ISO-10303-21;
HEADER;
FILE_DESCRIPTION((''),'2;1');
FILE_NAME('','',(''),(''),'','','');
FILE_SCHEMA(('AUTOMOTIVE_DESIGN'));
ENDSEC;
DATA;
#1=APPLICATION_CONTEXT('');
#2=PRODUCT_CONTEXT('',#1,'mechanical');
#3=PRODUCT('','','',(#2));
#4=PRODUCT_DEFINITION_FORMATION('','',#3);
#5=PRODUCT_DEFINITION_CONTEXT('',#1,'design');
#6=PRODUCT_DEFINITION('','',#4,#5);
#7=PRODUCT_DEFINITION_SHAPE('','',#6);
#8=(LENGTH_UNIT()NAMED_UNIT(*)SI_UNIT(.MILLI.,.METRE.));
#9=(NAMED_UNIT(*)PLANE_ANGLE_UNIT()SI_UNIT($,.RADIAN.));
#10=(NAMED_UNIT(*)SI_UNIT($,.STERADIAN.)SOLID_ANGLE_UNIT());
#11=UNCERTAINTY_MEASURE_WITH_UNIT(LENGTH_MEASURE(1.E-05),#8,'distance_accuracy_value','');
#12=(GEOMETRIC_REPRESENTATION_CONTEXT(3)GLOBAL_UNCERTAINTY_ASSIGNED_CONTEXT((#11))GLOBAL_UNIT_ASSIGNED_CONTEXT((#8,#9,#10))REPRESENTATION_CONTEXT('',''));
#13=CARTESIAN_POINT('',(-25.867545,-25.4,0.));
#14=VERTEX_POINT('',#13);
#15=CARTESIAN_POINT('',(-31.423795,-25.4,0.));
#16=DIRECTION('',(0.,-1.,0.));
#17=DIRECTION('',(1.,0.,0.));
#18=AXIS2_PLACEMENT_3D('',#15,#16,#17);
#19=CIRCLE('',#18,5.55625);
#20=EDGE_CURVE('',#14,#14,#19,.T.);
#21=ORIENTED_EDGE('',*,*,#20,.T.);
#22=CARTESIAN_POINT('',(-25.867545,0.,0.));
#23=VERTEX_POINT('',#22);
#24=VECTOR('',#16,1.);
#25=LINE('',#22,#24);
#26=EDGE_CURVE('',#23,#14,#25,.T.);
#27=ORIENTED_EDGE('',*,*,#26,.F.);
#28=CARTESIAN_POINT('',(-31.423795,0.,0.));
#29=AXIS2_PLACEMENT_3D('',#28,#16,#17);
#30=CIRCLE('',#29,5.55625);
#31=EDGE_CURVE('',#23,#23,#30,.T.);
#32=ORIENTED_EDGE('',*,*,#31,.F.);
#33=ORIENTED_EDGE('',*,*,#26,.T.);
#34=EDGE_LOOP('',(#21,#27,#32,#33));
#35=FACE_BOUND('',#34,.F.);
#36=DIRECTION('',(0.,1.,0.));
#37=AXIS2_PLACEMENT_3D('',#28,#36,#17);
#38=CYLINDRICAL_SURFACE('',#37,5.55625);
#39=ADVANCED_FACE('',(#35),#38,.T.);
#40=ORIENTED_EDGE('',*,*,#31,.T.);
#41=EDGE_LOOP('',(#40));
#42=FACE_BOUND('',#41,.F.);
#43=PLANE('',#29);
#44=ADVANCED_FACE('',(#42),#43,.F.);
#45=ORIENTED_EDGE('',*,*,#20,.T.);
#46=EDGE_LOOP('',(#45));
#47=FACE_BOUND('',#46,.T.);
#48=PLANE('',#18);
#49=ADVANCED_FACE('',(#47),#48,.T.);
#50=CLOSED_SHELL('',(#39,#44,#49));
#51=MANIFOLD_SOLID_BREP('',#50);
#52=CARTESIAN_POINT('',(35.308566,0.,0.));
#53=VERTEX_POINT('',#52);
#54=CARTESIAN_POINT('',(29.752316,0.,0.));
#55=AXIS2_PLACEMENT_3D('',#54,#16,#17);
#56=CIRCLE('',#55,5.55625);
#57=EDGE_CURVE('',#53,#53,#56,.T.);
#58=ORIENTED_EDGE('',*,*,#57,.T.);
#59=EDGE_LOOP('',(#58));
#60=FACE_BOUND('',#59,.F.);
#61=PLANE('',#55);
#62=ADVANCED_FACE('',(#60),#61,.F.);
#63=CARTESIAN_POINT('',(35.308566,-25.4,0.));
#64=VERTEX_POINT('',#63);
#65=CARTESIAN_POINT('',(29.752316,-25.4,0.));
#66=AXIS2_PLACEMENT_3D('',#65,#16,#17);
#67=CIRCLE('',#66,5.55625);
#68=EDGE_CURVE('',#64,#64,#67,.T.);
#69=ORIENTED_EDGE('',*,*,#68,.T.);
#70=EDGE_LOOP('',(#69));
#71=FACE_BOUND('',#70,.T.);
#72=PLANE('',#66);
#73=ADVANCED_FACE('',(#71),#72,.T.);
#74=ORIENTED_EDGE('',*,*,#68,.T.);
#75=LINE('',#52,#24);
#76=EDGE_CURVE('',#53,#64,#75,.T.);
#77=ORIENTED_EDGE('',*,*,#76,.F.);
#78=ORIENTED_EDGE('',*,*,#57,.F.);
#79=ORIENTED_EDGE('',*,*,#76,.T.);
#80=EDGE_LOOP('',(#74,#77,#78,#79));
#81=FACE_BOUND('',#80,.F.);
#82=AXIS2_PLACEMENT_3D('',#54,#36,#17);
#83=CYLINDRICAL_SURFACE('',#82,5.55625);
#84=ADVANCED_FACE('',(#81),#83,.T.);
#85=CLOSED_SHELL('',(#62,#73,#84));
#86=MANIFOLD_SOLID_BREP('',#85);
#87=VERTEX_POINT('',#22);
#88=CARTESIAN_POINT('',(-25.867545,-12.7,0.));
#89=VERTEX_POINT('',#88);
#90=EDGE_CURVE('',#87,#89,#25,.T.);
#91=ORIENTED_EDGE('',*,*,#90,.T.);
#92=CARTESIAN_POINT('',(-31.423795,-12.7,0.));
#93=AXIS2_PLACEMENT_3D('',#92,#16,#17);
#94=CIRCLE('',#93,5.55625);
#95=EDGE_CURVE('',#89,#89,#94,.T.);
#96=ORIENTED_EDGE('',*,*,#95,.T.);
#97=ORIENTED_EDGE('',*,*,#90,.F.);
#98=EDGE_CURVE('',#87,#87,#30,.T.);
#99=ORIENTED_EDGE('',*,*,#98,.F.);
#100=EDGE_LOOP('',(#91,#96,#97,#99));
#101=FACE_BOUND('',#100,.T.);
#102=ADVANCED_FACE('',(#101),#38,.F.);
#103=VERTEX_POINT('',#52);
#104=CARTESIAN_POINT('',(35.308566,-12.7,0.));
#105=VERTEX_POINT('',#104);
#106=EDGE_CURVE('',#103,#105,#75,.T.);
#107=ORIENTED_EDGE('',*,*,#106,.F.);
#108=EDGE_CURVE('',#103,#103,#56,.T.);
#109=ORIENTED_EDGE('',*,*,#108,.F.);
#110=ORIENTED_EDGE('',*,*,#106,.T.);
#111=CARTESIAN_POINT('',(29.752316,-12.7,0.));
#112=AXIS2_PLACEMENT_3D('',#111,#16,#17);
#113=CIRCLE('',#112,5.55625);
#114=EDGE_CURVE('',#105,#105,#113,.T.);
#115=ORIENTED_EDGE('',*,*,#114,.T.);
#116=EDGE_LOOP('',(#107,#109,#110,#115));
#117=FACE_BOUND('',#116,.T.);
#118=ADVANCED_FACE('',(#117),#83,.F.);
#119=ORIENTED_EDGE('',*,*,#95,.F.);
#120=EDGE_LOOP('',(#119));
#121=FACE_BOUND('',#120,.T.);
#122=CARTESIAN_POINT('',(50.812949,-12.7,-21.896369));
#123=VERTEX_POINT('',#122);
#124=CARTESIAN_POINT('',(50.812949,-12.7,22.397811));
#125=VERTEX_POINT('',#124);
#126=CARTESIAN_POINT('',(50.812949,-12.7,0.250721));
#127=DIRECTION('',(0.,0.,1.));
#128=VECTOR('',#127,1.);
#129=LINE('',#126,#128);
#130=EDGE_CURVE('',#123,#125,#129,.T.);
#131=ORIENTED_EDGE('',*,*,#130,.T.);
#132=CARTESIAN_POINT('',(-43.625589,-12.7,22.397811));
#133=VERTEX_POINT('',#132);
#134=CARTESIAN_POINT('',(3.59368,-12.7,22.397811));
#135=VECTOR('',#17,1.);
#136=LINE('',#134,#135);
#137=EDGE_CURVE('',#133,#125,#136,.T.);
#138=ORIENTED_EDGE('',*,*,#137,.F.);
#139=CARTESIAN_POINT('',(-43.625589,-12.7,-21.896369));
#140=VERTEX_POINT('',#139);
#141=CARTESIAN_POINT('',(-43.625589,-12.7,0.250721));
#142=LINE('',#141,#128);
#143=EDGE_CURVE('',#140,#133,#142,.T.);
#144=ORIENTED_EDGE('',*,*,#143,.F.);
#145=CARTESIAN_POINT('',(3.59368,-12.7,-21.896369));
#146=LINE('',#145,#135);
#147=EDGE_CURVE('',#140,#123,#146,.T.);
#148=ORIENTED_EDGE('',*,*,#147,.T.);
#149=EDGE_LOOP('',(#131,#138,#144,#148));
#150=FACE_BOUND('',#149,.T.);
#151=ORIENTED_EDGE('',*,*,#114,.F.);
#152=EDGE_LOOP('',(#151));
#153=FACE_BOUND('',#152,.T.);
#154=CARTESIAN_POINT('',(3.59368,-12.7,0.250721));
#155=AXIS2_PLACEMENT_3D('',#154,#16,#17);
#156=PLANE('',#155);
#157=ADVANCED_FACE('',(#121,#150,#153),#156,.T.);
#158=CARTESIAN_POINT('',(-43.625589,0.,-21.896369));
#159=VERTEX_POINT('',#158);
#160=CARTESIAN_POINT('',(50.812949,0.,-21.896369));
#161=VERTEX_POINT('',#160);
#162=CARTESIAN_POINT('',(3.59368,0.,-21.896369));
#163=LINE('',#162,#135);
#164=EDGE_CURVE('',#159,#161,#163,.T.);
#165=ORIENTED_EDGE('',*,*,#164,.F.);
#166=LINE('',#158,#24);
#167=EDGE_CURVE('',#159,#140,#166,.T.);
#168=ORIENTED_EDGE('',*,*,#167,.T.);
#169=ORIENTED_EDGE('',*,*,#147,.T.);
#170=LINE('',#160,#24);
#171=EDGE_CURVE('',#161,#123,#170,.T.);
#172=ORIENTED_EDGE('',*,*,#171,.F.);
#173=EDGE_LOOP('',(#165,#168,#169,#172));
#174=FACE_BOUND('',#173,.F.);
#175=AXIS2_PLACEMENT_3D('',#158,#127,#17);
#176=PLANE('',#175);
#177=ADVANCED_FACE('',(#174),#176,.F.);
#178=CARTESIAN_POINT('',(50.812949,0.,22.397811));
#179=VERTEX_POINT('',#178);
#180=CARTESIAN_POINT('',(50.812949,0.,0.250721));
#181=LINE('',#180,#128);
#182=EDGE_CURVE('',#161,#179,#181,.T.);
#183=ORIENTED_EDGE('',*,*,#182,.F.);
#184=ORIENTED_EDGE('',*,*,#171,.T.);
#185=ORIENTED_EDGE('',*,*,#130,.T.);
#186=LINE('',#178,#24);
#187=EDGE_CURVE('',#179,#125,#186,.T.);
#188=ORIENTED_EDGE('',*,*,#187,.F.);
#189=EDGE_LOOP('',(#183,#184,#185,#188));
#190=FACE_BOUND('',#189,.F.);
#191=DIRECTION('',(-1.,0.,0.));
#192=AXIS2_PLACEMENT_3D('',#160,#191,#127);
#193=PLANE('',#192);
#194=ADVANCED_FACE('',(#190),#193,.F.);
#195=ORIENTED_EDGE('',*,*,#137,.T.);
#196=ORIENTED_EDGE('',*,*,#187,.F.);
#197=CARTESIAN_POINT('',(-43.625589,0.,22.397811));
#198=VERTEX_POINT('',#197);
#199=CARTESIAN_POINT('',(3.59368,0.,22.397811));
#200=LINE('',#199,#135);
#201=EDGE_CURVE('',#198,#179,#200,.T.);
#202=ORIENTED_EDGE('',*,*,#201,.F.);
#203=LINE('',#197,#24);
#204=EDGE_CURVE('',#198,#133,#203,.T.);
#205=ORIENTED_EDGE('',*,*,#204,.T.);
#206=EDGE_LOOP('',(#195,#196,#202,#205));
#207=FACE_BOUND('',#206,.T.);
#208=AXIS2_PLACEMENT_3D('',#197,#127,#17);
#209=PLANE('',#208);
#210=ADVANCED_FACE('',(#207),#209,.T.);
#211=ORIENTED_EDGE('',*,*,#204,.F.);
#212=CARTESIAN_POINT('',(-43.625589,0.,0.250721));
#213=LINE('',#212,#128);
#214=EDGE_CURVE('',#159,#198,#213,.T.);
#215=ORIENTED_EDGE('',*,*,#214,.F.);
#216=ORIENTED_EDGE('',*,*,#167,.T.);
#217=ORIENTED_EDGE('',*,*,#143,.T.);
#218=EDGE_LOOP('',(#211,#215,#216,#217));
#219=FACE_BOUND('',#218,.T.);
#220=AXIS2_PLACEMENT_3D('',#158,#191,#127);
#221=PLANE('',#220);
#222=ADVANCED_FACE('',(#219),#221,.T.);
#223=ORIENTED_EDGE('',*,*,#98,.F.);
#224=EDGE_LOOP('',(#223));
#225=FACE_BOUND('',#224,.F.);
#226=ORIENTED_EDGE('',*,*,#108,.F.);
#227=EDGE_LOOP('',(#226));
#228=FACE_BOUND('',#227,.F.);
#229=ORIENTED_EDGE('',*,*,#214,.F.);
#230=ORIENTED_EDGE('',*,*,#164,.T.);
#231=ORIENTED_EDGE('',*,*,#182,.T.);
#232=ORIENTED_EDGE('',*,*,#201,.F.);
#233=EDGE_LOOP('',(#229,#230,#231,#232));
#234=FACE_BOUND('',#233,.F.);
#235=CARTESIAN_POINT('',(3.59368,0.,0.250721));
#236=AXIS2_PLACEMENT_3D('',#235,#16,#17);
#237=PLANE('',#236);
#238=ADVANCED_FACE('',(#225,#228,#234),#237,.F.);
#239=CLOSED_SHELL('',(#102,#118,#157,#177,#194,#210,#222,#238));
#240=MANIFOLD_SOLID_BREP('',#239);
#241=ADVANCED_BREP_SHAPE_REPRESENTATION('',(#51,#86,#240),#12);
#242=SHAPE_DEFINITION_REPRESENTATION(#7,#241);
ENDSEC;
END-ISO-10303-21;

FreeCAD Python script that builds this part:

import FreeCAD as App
import Part
import Sketcher

V = App.Vector
Q = App.Units.Quantity


def add_polygon(sketch, points):
    """Adds a closed chain of lines whose ends are joined by coincident constraints."""
    first, n = sketch.GeometryCount, len(points)
    for a, b in zip(points, points[1:] + points[:1]):
        sketch.addGeometry(Part.LineSegment(App.Vector(*a, 0), App.Vector(*b, 0)), False)
    for i in range(n):
        sketch.addConstraint(Sketcher.Constraint("Coincident", first + i, 2, first + (i + 1) % n, 1))

doc = App.newDocument("Part")
params = doc.addObject("Spreadsheet::Sheet", "Params")
for row, (alias, value) in enumerate([
    ("sketch1_diameter", "0.4375 in"),
    ("pad1_length", "1 in"),
    ("sketch2_diameter", "0.4375 in"),
    ("pad2_length", "0.5 in"),
], start=1):
    params.set(f"A{row}", alias)
    params.set(f"B{row}", "=" + value)
    params.setAlias(f"B{row}", alias)

body = doc.addObject("PartDesign::Body", "Body")
body.AllowCompound = True

sketch1 = body.newObject("Sketcher::SketchObject", "Sketch")
sketch1.AttachmentSupport = (doc.getObject("XZ_Plane"), [""])
sketch1.MapMode = "FlatFace"
sketch1.addGeometry(Part.Circle(V(30, 0, 0), V(0, 0, 1), 6), False)
sketch1.addGeometry(Part.Circle(V(-31, 0, 0), V(0, 0, 1), 6), False)
sketch1.addConstraint(Sketcher.Constraint("Equal", 0, 1))
sketch1.addConstraint(Sketcher.Constraint("PointOnObject", 0, 3, -1))
sketch1.addConstraint(Sketcher.Constraint("PointOnObject", 1, 3, -1))
sketch1.addConstraint(Sketcher.Constraint("Diameter", 0, Q("0.4375 in")))
sketch1.addConstraint(Sketcher.Constraint("DistanceX", 1, 3, 0, 3, 61.176111))
sketch1.addConstraint(Sketcher.Constraint("DistanceX", -1, 1, 0, 3, 29.752316))
sketch1.setExpression("Constraints[3]", "Params.sketch1_diameter")
pad1 = body.newObject("PartDesign::Pad", "Pad")
pad1.Profile = sketch1
pad1.setExpression("Length", "Params.pad1_length")
body2 = doc.addObject("PartDesign::Body", "Body001")

sketch2 = body2.newObject("Sketcher::SketchObject", "Sketch001")
sketch2.AttachmentSupport = (doc.getObject("XZ_Plane001"), [""])
sketch2.MapMode = "FlatFace"
add_polygon(sketch2, [(-44, 22), (-44, -22), (51, -22), (51, 22)])
sketch2.addGeometry(Part.Circle(V(-31, 0, 0), V(0, 0, 1), 6), False)
sketch2.addGeometry(Part.Circle(V(30, 0, 0), V(0, 0, 1), 6), False)
sketch2.addConstraint(Sketcher.Constraint("Vertical", 0))
sketch2.addConstraint(Sketcher.Constraint("Horizontal", 1))
sketch2.addConstraint(Sketcher.Constraint("Vertical", 2))
sketch2.addConstraint(Sketcher.Constraint("Horizontal", 3))
sketch2.addConstraint(Sketcher.Constraint("Equal", 4, 5))
sketch2.addConstraint(Sketcher.Constraint("PointOnObject", 4, 3, -1))
sketch2.addConstraint(Sketcher.Constraint("PointOnObject", 5, 3, -1))
sketch2.addConstraint(Sketcher.Constraint("Diameter", 4, Q("0.4375 in")))
sketch2.addConstraint(Sketcher.Constraint("DistanceY", 0, 2, 0, 1, 44.294181))
sketch2.addConstraint(Sketcher.Constraint("DistanceX", 1, 1, 1, 2, 94.438538))
sketch2.addConstraint(Sketcher.Constraint("DistanceX", 0, 2, -1, 1, 43.625589))
sketch2.addConstraint(Sketcher.Constraint("DistanceY", 0, 2, -1, 1, 21.896369))
sketch2.addConstraint(Sketcher.Constraint("DistanceX", 4, 3, 5, 3, 61.176111))
sketch2.addConstraint(Sketcher.Constraint("DistanceX", 4, 3, -1, 1, 31.423795))
sketch2.setExpression("Constraints[11]", "Params.sketch2_diameter")
pad2 = body2.newObject("PartDesign::Pad", "Pad001")
pad2.Profile = sketch2
pad2.setExpression("Length", "Params.pad2_length")

doc.recompute()
